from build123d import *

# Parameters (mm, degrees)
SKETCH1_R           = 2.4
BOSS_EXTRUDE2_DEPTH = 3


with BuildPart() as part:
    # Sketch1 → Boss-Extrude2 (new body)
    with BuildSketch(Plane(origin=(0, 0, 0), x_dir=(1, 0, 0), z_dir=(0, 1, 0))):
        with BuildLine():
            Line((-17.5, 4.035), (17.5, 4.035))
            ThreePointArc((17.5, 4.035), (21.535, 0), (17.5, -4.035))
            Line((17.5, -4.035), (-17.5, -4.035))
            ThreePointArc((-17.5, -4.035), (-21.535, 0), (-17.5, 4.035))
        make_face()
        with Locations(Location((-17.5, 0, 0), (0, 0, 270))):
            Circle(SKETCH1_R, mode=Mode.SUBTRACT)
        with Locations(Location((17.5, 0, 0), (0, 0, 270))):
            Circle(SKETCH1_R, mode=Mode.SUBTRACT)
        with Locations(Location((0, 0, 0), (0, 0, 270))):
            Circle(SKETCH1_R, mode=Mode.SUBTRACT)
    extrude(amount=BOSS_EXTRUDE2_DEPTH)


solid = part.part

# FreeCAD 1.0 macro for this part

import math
import FreeCAD as App
import Part
import Sketcher

V = App.Vector

doc = App.newDocument("Part")
body = doc.addObject("PartDesign::Body", "Body")

# Sketch on XZ plane
sketch1 = body.newObject("Sketcher::SketchObject", "Sketch")
sketch1.AttachmentSupport = (doc.getObject("XZ_Plane"), [""])
sketch1.MapMode = "FlatFace"
sketch1.addGeometry([
    Part.LineSegment(V(17.5, -4.035, 0), V(-17.5, -4.035, 0)),  # 0
    Part.ArcOfCircle(Part.Circle(V(-17.5, 0, 0), V(0, 0, 1), 4.035), math.radians(90), math.radians(270)),  # 1
    Part.LineSegment(V(-17.5, 4.035, 0), V(17.5, 4.035, 0)),  # 2
    Part.ArcOfCircle(Part.Circle(V(17.5, 0, 0), V(0, 0, 1), 4.035), math.radians(-90), math.radians(90)),  # 3
    Part.Circle(V(17.5, 0, 0), V(0, 0, 1), 2.4),  # 4
    Part.Circle(V(0, 0, 0), V(0, 0, 1), 2.4),  # 5
    Part.Circle(V(-17.5, 0, 0), V(0, 0, 1), 2.4),  # 6
], False)
sketch1.addConstraint([
    Sketcher.Constraint("Tangent", 0, 2, 1, 2),
    Sketcher.Constraint("Tangent", 1, 1, 2, 1),
    Sketcher.Constraint("Tangent", 2, 2, 3, 2),
    Sketcher.Constraint("Tangent", 3, 1, 0, 1),
    Sketcher.Constraint("Horizontal", 0),
    Sketcher.Constraint("Horizontal", 2),
    Sketcher.Constraint("Coincident", 5, 3, -1, 1),
    Sketcher.Constraint("Coincident", 4, 3, 3, 3),
    Sketcher.Constraint("Coincident", 6, 3, 1, 3),
    Sketcher.Constraint("Equal", 4, 5),
    Sketcher.Constraint("Equal", 5, 6),
    Sketcher.Constraint("Symmetric", 1, 3, 3, 3, -1, 1),
    Sketcher.Constraint("Diameter", 4, 4.8),
    Sketcher.Constraint("DistanceX", 0, 2, 0, 1, 35.0),
    Sketcher.Constraint("Radius", 1, 4.035),
])
pad1 = body.newObject("PartDesign::Pad", "Pad")
pad1.Profile = sketch1
pad1.Length = 3
pad1.Reversed = True

doc.recompute()
